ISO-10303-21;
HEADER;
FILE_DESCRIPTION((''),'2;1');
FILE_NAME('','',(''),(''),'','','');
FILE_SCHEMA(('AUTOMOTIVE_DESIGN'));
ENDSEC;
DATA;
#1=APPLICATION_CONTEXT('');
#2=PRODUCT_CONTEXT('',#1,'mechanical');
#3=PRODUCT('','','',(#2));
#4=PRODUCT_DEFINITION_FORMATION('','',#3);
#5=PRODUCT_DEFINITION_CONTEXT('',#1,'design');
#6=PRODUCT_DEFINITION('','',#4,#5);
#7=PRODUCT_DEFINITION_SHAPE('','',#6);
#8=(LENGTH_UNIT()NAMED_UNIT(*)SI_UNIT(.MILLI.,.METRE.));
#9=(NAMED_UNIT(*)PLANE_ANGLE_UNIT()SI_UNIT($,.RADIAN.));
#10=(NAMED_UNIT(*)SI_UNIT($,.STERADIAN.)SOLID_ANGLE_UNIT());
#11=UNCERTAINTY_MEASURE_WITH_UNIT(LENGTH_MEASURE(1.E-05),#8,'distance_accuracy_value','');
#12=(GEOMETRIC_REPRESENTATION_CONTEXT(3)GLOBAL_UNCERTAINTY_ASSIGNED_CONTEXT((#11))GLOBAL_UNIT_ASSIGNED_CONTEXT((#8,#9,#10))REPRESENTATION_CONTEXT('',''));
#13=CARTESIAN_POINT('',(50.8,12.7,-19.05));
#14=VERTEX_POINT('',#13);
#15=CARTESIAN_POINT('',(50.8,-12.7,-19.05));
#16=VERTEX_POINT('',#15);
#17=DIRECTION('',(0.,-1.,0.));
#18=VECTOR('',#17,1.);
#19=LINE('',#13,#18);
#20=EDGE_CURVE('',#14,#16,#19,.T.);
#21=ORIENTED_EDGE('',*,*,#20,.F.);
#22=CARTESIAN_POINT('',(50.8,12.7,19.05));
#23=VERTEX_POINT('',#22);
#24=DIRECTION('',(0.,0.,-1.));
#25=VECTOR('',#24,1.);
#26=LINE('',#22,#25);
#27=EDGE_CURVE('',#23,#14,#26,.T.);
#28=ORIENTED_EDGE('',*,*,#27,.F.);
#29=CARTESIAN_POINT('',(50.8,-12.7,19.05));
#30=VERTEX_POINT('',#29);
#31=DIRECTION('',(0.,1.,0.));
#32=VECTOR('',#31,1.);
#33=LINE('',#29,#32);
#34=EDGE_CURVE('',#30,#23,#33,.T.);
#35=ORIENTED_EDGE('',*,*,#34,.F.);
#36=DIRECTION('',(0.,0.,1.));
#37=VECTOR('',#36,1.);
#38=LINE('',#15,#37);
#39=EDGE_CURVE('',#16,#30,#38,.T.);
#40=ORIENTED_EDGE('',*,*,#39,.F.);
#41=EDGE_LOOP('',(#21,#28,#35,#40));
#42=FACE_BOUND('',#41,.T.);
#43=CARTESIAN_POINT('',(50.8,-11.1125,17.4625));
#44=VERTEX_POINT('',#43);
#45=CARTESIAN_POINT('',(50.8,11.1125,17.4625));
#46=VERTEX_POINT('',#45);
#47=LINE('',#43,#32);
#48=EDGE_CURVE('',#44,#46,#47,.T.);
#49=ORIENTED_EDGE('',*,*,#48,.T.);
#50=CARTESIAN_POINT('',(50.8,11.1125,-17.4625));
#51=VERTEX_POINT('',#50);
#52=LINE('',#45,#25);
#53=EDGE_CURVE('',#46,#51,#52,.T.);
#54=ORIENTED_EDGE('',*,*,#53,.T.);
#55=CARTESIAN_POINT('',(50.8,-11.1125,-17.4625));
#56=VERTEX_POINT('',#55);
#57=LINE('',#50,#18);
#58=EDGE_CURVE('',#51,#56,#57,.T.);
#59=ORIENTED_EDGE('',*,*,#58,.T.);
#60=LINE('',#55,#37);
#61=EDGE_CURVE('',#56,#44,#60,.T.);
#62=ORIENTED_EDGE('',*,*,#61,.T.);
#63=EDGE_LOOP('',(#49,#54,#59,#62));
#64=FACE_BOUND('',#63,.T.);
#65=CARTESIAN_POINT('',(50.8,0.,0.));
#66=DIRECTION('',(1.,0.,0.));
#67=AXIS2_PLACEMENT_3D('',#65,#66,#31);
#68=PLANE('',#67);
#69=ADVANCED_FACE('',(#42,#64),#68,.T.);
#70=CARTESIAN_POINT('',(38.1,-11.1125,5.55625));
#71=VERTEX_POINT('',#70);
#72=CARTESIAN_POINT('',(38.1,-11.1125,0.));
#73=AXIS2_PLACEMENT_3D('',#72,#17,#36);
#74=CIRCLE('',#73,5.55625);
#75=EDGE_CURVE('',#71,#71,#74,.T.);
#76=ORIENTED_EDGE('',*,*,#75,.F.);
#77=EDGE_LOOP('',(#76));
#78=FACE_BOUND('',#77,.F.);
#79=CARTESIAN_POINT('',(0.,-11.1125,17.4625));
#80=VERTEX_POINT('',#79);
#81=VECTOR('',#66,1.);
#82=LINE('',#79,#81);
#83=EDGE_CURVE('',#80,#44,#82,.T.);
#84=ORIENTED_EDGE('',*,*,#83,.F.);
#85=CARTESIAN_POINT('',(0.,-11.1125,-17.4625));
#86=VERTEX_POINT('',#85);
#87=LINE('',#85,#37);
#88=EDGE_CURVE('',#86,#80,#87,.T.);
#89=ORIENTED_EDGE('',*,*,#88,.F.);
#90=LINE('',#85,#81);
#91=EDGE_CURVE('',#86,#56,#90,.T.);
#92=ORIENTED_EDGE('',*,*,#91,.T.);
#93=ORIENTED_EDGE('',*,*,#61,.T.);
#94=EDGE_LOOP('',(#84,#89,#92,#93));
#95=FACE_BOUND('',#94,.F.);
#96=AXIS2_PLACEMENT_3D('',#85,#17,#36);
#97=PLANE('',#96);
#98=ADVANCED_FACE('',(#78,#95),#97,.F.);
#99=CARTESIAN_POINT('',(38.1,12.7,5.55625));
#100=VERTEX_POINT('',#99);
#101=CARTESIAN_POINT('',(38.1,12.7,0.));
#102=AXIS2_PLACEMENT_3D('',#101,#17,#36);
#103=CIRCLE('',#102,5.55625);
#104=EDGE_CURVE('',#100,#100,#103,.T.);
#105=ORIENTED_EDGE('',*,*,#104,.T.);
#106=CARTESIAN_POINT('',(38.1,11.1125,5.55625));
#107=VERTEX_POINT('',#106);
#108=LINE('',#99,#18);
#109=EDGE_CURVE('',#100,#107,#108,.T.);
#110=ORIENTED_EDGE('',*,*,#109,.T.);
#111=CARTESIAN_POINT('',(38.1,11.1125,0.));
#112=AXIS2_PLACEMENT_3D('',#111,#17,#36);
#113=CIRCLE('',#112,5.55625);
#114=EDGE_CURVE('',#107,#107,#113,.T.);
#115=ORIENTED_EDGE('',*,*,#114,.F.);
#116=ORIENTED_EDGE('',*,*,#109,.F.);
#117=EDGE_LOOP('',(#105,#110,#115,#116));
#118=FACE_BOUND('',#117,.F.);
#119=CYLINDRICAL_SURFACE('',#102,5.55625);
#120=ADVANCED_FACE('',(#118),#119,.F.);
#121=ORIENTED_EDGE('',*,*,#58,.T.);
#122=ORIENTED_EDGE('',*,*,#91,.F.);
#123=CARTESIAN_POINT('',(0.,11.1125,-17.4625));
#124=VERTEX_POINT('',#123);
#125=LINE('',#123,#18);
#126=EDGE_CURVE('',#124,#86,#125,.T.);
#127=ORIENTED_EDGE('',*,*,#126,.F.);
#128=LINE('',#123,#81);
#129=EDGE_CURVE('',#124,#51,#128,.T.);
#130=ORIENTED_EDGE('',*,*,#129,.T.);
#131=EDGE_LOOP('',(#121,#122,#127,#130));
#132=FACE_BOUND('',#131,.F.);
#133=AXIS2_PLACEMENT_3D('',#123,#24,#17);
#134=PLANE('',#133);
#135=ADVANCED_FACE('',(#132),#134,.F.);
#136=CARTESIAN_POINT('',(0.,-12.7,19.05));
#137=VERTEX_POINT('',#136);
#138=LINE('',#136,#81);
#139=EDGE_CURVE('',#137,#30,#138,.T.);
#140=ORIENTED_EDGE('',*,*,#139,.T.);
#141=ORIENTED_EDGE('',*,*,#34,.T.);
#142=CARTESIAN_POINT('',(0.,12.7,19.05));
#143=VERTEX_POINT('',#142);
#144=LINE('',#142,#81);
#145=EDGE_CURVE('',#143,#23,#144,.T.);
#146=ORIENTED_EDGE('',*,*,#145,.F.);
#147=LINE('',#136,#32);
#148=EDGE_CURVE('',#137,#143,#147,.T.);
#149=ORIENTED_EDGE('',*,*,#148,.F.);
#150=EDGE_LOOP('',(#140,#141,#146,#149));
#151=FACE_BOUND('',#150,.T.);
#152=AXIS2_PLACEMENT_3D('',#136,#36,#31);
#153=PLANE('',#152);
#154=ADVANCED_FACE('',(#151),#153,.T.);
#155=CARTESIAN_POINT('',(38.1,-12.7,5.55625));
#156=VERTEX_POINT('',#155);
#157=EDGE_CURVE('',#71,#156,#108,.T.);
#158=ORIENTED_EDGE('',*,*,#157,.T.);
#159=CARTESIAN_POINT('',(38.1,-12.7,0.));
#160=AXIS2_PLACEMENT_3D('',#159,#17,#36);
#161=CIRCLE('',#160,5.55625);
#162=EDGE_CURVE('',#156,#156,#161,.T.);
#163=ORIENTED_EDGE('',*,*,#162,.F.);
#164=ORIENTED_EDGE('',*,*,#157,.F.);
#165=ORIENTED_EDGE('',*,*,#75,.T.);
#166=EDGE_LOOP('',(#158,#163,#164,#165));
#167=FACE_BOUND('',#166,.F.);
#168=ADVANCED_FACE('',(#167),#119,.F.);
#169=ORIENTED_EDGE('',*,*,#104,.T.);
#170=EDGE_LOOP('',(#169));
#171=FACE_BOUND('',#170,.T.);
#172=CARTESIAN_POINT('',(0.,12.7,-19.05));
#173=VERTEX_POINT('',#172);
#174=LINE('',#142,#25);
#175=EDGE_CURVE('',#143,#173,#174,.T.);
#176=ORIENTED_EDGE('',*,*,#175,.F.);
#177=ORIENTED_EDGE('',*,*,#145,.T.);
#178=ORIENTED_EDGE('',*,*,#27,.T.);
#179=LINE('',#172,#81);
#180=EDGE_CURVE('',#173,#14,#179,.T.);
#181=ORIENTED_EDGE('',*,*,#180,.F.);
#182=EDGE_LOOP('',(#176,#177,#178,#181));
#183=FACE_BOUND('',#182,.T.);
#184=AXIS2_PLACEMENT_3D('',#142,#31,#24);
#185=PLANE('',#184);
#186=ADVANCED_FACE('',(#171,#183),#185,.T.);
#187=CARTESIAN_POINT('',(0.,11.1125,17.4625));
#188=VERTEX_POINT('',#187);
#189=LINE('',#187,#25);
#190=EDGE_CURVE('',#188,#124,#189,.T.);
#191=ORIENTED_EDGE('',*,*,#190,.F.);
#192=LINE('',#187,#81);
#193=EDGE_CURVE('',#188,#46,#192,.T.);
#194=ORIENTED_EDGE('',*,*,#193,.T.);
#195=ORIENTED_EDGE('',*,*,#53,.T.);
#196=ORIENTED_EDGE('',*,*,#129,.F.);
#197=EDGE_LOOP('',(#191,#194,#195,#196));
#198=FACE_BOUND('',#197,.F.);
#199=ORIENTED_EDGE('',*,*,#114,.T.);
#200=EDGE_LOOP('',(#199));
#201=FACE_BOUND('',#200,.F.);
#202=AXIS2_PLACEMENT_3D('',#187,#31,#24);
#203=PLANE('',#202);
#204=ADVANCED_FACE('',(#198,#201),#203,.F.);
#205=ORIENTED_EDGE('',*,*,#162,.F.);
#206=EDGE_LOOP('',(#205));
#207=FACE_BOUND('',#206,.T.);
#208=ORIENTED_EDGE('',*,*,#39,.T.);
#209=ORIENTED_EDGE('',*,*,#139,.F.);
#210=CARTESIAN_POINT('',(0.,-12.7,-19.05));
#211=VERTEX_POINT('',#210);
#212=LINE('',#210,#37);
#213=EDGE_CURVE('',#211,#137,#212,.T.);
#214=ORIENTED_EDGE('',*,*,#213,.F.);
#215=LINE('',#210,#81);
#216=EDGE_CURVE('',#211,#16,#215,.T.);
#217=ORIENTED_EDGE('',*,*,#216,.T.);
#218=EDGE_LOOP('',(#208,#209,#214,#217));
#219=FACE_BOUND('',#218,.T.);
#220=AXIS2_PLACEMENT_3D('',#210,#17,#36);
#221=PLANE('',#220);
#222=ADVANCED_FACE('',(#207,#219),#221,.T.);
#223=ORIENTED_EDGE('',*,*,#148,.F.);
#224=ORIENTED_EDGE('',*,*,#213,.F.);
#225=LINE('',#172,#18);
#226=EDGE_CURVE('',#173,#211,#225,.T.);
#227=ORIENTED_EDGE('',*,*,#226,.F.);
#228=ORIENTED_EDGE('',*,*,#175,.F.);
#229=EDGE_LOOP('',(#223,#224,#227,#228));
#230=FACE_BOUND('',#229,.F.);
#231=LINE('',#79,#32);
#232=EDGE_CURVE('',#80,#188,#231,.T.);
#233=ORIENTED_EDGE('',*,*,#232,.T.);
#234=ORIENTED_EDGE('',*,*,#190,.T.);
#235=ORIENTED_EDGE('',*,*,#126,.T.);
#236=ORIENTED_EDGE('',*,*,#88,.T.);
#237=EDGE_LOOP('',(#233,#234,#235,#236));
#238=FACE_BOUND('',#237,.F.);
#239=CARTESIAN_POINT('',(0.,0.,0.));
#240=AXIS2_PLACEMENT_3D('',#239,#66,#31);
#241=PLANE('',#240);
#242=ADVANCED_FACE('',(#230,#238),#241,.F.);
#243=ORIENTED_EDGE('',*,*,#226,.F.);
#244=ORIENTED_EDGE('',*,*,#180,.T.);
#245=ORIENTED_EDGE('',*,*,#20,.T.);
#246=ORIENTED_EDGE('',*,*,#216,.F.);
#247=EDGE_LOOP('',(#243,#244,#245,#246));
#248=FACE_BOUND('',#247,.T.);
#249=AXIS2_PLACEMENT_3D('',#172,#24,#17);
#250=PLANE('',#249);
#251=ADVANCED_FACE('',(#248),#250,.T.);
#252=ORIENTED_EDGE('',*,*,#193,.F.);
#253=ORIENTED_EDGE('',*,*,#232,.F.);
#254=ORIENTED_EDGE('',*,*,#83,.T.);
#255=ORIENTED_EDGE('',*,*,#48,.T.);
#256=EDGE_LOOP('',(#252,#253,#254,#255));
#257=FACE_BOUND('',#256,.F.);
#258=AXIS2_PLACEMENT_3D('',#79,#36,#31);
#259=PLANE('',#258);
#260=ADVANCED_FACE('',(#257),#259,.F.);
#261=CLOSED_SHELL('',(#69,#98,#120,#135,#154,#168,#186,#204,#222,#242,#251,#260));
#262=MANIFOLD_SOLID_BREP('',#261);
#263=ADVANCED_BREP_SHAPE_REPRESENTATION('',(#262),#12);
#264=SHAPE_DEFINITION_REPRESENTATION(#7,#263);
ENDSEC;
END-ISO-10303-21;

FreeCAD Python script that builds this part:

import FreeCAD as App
import Part
import Sketcher
Q = App.Units.Quantity

doc = App.newDocument("Part")
params = doc.addObject("Spreadsheet::Sheet", "Params")
for row, (alias, value) in enumerate([
    ("sketch1_width", "1 in"),
    ("sketch1_height", "1.5 in"),
    ("pad1_length", "2 in"),
    ("sketch2_diameter", "0.4375 in"),
    ("hole_diameter", "0.4375 in"),
], start=1):
    params.set(f"A{row}", alias)
    params.set(f"B{row}", "=" + value)
    params.setAlias(f"B{row}", alias)

body = doc.addObject("PartDesign::Body", "Body")

sketch1 = body.newObject("Sketcher::SketchObject", "Sketch")
sketch1.AttachmentSupport = (doc.getObject("YZ_Plane"), [""])
sketch1.MapMode = "FlatFace"
sketch1.addGeometry(Part.LineSegment(App.Vector(13, 19, 0), App.Vector(-13, 19, 0)), False)
sketch1.addGeometry(Part.LineSegment(App.Vector(-13, 19, 0), App.Vector(-13, -19, 0)), False)
sketch1.addGeometry(Part.LineSegment(App.Vector(-13, -19, 0), App.Vector(13, -19, 0)), False)
sketch1.addGeometry(Part.LineSegment(App.Vector(13, -19, 0), App.Vector(13, 19, 0)), False)
sketch1.addGeometry(Part.LineSegment(App.Vector(-11, -17, 0), App.Vector(-11, 17, 0)), False)
sketch1.addGeometry(Part.LineSegment(App.Vector(-11, 17, 0), App.Vector(11, 17, 0)), False)
sketch1.addGeometry(Part.LineSegment(App.Vector(11, 17, 0), App.Vector(11, -17, 0)), False)
sketch1.addGeometry(Part.LineSegment(App.Vector(11, -17, 0), App.Vector(-11, -17, 0)), False)
sketch1.addConstraint(Sketcher.Constraint("Coincident", 0, 2, 1, 1))
sketch1.addConstraint(Sketcher.Constraint("Coincident", 1, 2, 2, 1))
sketch1.addConstraint(Sketcher.Constraint("Coincident", 2, 2, 3, 1))
sketch1.addConstraint(Sketcher.Constraint("Coincident", 3, 2, 0, 1))
sketch1.addConstraint(Sketcher.Constraint("Coincident", 4, 2, 5, 1))
sketch1.addConstraint(Sketcher.Constraint("Coincident", 5, 2, 6, 1))
sketch1.addConstraint(Sketcher.Constraint("Coincident", 6, 2, 7, 1))
sketch1.addConstraint(Sketcher.Constraint("Coincident", 7, 2, 4, 1))
sketch1.addConstraint(Sketcher.Constraint("Horizontal", 0))
sketch1.addConstraint(Sketcher.Constraint("Vertical", 1))
sketch1.addConstraint(Sketcher.Constraint("Horizontal", 2))
sketch1.addConstraint(Sketcher.Constraint("Vertical", 3))
sketch1.addConstraint(Sketcher.Constraint("Vertical", 4))
sketch1.addConstraint(Sketcher.Constraint("Horizontal", 5))
sketch1.addConstraint(Sketcher.Constraint("Vertical", 6))
sketch1.addConstraint(Sketcher.Constraint("Horizontal", 7))
sketch1.addConstraint(Sketcher.Constraint("Symmetric", 0, 2, 2, 2, -1, 1))
sketch1.addConstraint(Sketcher.Constraint("Symmetric", 4, 2, 6, 2, -1, 1))
sketch1.addConstraint(Sketcher.Constraint("DistanceX", 0, 2, 0, 1, Q("1 in")))
sketch1.addConstraint(Sketcher.Constraint("DistanceY", 1, 2, 1, 1, Q("1.5 in")))
sketch1.addConstraint(Sketcher.Constraint("DistanceX", 0, 2, 4, 2, Q("0.0625 in")))
sketch1.addConstraint(Sketcher.Constraint("DistanceY", 4, 2, 0, 2, Q("0.0625 in")))
sketch1.setExpression("Constraints[18]", "Params.sketch1_width")
sketch1.setExpression("Constraints[19]", "Params.sketch1_height")
pad1 = body.newObject("PartDesign::Pad", "Pad")
pad1.Profile = sketch1
pad1.setExpression("Length", "Params.pad1_length")

sketch2 = body.newObject("Sketcher::SketchObject", "Sketch001")
sketch2.AttachmentSupport = (doc.getObject("XZ_Plane"), [""])
sketch2.MapMode = "FlatFace"
sketch2.AttachmentOffset = App.Placement(App.Vector(0, 0, -0.5 * 25.4), App.Rotation())
sketch2.addGeometry(Part.Circle(App.Vector(38, 0, 0), App.Vector(0, 0, 1), 6), False)
sketch2.addConstraint(Sketcher.Constraint("PointOnObject", 0, 3, -1))
sketch2.addConstraint(Sketcher.Constraint("Diameter", 0, Q("0.4375 in")))
sketch2.addConstraint(Sketcher.Constraint("DistanceX", -1, 1, 0, 3, Q("1.5 in")))
sketch2.setExpression("Constraints[1]", "Params.sketch2_diameter")
doc.recompute()
hole = body.newObject("PartDesign::Hole", "Hole")
hole.Profile = sketch2
hole.ThreadType = "None"
hole.setExpression("Diameter", "Params.hole_diameter")
hole.DepthType = "ThroughAll"
hole.Reversed = True

doc.recompute()
